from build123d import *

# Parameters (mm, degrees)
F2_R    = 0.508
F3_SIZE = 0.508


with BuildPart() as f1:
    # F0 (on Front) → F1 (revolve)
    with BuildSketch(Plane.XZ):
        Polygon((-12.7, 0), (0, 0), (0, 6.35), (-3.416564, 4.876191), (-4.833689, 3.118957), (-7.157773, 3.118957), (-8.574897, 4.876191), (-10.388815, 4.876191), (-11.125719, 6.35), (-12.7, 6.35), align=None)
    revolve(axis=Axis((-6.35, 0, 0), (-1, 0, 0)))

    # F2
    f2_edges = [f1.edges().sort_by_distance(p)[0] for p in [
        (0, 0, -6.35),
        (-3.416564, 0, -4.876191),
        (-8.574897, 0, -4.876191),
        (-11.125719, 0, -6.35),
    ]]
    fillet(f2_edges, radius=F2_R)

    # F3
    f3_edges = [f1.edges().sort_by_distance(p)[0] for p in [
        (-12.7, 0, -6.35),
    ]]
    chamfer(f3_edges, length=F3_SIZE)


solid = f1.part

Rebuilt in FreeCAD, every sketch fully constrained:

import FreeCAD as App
import Part
import Sketcher
from FreeCAD import Vector
Q = App.Units.Quantity


def edges_at(feature, points):
    """Names of the edges that pass closest to the given points."""
    edges = feature.Shape.Edges
    near = lambda p: min(range(len(edges)), key=lambda i: edges[i].distToShape(Part.Vertex(*p))[0])
    return sorted({f"Edge{near(p) + 1}" for p in points})


def add_polygon(sketch, points):
    """Adds a closed chain of lines whose ends are joined by coincident constraints."""
    first, n = sketch.GeometryCount, len(points)
    for a, b in zip(points, points[1:] + points[:1]):
        sketch.addGeometry(Part.LineSegment(App.Vector(*a, 0), App.Vector(*b, 0)), False)
    for i in range(n):
        sketch.addConstraint(Sketcher.Constraint("Coincident", first + i, 2, first + (i + 1) % n, 1))

doc = App.newDocument("Part")
body = doc.addObject("PartDesign::Body", "Body")

# Sketch on XZ plane
sketch1 = body.newObject("Sketcher::SketchObject", "Sketch")
sketch1.AttachmentSupport = (doc.getObject("XZ_Plane"), [""])
sketch1.MapMode = "FlatFace"
add_polygon(sketch1, [(-12.7, 0), (0, 0), (0, 6.35), (-3.416564, 4.876191), (-4.833689, 3.118957), (-7.157773, 3.118957), (-8.574897, 4.876191), (-10.388815, 4.876191), (-11.125719, 6.35), (-12.7, 6.35)])  # lines 0-9
sketch1.addConstraint(Sketcher.Constraint("Horizontal", 0))
sketch1.addConstraint(Sketcher.Constraint("Vertical", 1))
sketch1.addConstraint(Sketcher.Constraint("Horizontal", 4))
sketch1.addConstraint(Sketcher.Constraint("Horizontal", 6))
sketch1.addConstraint(Sketcher.Constraint("Horizontal", 8))
sketch1.addConstraint(Sketcher.Constraint("Vertical", 9))
sketch1.addConstraint(Sketcher.Constraint("Coincident", 0, 2, -1, 1))
sketch1.addConstraint(Sketcher.Constraint("Horizontal", 2, 2, 5, 2))
sketch1.addConstraint(Sketcher.Constraint("Horizontal", 1, 2, 7, 2))
sketch1.addConstraint(Sketcher.Constraint("Equal", 3, 5))
sketch1.addConstraint(Sketcher.Constraint("DistanceX", 0, 1, 0, 2, Q("0.5 in")))
sketch1.addConstraint(Sketcher.Constraint("DistanceY", 1, 1, 1, 2, Q("0.25 in")))
sketch1.addConstraint(Sketcher.Constraint("DistanceX", 8, 2, 8, 1, Q("1.574281 mm")))
sketch1.addConstraint(Sketcher.Constraint("Distance", 2, Q("3.72089 mm")))
sketch1.addConstraint(Sketcher.Constraint("Distance", 7, Q("1.647768 mm")))
sketch1.addConstraint(Sketcher.Constraint("DistanceX", 4, 2, 4, 1, Q("2.324084 mm")))
sketch1.addConstraint(Sketcher.Constraint("DistanceX", 6, 2, 6, 1, Q("1.813918 mm")))
sketch1.addConstraint(Sketcher.Constraint("DistanceY", -1, 1, 2, 2, Q("4.876191 mm")))
sketch1.addConstraint(Sketcher.Constraint("Distance", 3, Q("2.257458 mm")))
revolution = body.newObject("PartDesign::Revolution", "Revolution")
revolution.Profile = sketch1
revolution.ReferenceAxis = (sketch1, ["H_Axis"])
revolution.Angle = 360
doc.recompute()

fillet = body.newObject("PartDesign::Fillet", "Fillet")
fillet.Base = (revolution, edges_at(revolution, [
    (0, 0, -6.35),
    (-3.417, 0, -4.876),
    (-8.575, 0, -4.876),
    (-11.126, 0, -6.35),
]))
fillet.Radius = Q("0.02 in")
doc.recompute()

chamfer = body.newObject("PartDesign::Chamfer", "Chamfer")
chamfer.Base = (fillet, edges_at(fillet, [(-12.7, 0, -6.35)]))
chamfer.Size = Q("0.02 in")

doc.recompute()
